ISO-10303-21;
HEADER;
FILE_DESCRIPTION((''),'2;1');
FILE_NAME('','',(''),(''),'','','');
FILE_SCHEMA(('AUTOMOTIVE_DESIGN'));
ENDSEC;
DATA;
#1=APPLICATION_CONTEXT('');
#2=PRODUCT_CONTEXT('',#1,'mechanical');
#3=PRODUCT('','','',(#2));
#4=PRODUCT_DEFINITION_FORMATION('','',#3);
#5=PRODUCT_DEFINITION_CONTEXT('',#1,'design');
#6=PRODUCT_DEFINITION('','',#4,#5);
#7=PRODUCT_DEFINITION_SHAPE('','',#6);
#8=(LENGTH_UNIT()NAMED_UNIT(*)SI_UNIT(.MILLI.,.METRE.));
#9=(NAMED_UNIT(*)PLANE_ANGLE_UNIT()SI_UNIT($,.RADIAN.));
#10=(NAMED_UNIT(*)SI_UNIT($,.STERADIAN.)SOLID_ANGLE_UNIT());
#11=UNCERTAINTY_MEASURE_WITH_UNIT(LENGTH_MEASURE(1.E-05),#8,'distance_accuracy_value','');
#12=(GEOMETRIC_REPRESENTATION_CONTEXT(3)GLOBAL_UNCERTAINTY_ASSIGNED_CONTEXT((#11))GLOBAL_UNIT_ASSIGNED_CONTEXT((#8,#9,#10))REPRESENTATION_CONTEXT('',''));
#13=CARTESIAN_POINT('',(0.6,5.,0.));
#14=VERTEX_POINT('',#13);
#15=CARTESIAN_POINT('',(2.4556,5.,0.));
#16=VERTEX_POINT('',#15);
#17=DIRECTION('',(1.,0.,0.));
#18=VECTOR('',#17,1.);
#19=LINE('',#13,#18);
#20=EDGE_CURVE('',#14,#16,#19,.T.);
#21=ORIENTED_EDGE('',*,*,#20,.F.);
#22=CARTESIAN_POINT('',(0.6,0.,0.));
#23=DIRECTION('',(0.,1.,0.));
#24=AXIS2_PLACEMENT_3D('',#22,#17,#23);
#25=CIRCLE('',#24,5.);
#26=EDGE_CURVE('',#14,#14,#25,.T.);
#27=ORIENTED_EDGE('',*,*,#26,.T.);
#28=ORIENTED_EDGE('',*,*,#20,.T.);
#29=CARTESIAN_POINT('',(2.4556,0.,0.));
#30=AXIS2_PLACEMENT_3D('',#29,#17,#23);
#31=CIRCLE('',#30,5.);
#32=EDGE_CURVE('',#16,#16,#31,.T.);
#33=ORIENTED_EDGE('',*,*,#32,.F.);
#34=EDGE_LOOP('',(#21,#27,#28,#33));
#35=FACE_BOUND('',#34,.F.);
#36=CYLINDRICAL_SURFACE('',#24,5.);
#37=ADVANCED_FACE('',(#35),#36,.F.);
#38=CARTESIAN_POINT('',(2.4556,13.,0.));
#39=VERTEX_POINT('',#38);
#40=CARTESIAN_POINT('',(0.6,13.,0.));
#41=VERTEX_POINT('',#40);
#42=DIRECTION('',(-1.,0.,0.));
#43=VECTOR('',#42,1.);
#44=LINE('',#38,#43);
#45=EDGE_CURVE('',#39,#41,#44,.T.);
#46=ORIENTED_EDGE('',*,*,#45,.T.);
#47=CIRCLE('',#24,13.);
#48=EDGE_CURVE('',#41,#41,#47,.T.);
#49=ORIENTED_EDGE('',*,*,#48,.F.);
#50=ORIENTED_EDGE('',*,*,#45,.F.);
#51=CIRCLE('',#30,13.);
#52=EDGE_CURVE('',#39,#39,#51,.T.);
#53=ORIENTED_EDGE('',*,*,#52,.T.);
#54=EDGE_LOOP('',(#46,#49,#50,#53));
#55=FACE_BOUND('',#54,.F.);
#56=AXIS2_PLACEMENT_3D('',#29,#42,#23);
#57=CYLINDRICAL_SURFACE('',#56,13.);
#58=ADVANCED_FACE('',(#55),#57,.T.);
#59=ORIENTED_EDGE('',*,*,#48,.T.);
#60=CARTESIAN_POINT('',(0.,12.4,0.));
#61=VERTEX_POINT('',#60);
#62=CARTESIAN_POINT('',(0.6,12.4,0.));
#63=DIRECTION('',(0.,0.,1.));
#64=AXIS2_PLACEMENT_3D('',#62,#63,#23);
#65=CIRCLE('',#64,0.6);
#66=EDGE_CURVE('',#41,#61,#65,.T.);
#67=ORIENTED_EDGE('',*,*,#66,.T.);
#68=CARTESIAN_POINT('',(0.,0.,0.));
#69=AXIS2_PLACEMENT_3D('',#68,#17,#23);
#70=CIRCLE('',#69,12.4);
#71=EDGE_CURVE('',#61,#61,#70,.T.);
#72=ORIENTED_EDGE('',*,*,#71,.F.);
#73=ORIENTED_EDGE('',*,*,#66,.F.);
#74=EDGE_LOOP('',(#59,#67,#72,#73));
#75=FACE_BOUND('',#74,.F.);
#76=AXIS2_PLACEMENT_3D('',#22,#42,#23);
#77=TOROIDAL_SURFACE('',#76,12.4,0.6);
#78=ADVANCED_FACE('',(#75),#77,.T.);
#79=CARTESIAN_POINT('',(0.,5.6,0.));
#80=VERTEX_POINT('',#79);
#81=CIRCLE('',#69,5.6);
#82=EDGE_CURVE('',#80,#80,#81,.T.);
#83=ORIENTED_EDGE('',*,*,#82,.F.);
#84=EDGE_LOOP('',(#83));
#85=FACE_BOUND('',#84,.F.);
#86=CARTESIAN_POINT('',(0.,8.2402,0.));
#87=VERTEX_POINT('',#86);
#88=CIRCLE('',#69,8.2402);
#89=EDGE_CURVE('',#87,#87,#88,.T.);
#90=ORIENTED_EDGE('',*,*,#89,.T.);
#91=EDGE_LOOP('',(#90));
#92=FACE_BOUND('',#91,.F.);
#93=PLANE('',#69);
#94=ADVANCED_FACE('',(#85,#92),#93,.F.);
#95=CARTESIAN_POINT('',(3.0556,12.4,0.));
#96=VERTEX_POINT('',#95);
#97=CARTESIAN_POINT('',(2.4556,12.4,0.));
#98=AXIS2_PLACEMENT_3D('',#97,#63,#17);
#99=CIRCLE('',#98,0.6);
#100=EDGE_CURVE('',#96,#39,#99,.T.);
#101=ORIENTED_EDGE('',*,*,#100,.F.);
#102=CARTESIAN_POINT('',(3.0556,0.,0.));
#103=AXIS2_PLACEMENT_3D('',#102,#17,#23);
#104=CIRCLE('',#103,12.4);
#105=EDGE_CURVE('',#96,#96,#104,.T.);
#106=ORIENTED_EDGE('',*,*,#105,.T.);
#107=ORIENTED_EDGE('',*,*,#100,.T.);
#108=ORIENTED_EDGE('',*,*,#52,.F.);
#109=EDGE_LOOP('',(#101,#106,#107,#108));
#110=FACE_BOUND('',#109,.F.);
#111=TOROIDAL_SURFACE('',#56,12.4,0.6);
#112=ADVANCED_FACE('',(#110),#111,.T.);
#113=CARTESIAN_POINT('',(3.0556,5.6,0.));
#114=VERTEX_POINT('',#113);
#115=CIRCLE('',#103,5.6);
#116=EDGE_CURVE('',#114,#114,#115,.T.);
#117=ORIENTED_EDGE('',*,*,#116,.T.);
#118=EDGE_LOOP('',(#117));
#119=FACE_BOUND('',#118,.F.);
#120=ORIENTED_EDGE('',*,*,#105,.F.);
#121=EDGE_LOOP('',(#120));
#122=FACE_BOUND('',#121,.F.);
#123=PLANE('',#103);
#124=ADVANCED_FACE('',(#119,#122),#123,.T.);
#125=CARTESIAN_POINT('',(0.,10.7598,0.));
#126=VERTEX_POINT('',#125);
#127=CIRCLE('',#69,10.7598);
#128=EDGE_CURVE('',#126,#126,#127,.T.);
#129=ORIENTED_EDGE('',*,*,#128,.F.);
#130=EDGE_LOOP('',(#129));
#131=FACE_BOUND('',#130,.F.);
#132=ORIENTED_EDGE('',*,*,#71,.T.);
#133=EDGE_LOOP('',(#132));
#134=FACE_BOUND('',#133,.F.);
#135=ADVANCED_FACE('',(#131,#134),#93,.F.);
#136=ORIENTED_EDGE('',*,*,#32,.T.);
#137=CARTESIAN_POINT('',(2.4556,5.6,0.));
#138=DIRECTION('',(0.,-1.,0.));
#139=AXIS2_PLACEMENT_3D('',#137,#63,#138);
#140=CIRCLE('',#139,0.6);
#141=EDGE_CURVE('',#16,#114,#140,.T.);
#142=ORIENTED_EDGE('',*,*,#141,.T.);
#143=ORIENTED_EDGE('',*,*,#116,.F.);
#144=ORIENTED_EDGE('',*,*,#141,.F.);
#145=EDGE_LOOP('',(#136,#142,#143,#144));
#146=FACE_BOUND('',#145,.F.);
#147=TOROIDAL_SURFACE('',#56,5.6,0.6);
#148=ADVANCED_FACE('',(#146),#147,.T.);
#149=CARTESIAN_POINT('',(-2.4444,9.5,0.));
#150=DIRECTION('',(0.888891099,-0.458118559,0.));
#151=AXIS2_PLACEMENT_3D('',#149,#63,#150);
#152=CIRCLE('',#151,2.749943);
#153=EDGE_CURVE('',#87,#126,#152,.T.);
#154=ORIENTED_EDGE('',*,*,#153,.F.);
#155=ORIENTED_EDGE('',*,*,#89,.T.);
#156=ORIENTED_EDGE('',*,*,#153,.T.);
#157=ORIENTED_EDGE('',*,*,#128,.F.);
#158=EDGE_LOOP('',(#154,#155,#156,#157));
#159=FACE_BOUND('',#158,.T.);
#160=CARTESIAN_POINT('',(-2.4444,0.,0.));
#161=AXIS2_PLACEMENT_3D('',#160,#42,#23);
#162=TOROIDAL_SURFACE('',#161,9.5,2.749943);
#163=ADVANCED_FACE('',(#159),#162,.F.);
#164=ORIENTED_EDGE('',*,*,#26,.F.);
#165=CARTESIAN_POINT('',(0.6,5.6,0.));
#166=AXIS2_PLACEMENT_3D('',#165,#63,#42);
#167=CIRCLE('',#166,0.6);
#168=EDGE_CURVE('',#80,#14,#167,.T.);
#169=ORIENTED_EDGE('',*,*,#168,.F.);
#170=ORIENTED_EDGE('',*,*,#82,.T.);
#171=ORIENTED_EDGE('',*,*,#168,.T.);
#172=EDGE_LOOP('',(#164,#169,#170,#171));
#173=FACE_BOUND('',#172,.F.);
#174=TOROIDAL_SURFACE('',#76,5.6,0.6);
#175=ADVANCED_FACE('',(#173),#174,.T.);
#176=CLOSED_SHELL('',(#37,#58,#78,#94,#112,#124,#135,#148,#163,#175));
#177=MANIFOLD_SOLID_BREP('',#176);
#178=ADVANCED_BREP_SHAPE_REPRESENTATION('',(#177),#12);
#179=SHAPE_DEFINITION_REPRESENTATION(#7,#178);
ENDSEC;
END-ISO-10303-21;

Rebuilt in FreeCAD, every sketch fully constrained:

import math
import FreeCAD as App
import Part
import Sketcher

V = App.Vector
Q = App.Units.Quantity

doc = App.newDocument("Part")
params = doc.addObject("Spreadsheet::Sheet", "Params")
for row, (alias, value) in enumerate([
    ("sketch1_radius", "0.6 mm"),
    ("sketch1_radius2", "2.75 mm"),
    ("sketch1_height", "6.8 mm"),
    ("revolution_angle", "360 deg"),
], start=1):
    params.set(f"A{row}", alias)
    params.set(f"B{row}", "=" + value)
    params.setAlias(f"B{row}", alias)

body = doc.addObject("PartDesign::Body", "Body")

sketch1 = body.newObject("Sketcher::SketchObject", "Sketch")
sketch1.AttachmentSupport = (doc.getObject("XY_Plane"), [""])
sketch1.MapMode = "FlatFace"
sketch1.addGeometry([
    Part.ArcOfCircle(Part.Circle(V(-2.4, 9.5, 0), V(0, 0, 1), 2.7), math.radians(-27), math.radians(27)),
    Part.LineSegment(V(0, 8.2, 0), V(0, 5.6, 0)),
    Part.ArcOfCircle(Part.Circle(V(0.6, 5.6, 0), V(0, 0, 1), 0.6), math.radians(180), math.radians(270)),
    Part.LineSegment(V(0.6, 5, 0), V(2.5, 5, 0)),
    Part.ArcOfCircle(Part.Circle(V(2.5, 5.6, 0), V(0, 0, 1), 0.6), math.radians(-90), math.radians(0)),
    Part.LineSegment(V(3.1, 5.6, 0), V(3.1, 12.4, 0)),
    Part.ArcOfCircle(Part.Circle(V(2.5, 12.4, 0), V(0, 0, 1), 0.6), math.radians(0), math.radians(90)),
    Part.LineSegment(V(2.5, 13, 0), V(0.6, 13, 0)),
    Part.ArcOfCircle(Part.Circle(V(0.6, 12.4, 0), V(0, 0, 1), 0.6), math.radians(90), math.radians(180)),
    Part.LineSegment(V(0, 12.4, 0), V(0, 10.8, 0)),
], False)
sketch1.addConstraint([
    Sketcher.Constraint("Coincident", 0, 1, 1, 1),
    Sketcher.Constraint("Tangent", 1, 2, 2, 1),
    Sketcher.Constraint("Tangent", 2, 2, 3, 1),
    Sketcher.Constraint("Tangent", 3, 2, 4, 1),
    Sketcher.Constraint("Tangent", 4, 2, 5, 1),
    Sketcher.Constraint("Tangent", 5, 2, 6, 1),
    Sketcher.Constraint("Tangent", 6, 2, 7, 1),
    Sketcher.Constraint("Tangent", 7, 2, 8, 1),
    Sketcher.Constraint("Tangent", 8, 2, 9, 1),
    Sketcher.Constraint("Coincident", 9, 2, 0, 2),
    Sketcher.Constraint("Vertical", 1),
    Sketcher.Constraint("Horizontal", 3),
    Sketcher.Constraint("Vertical", 5),
    Sketcher.Constraint("Horizontal", 7),
    Sketcher.Constraint("Vertical", 9),
    Sketcher.Constraint("Equal", 2, 4),
    Sketcher.Constraint("Equal", 4, 6),
    Sketcher.Constraint("Equal", 6, 8),
    Sketcher.Constraint("PointOnObject", 0, 1, -2),
    Sketcher.Constraint("PointOnObject", 8, 2, -2),
    Sketcher.Constraint("Radius", 2, Q("0.6 mm")),
    Sketcher.Constraint("Radius", 0, Q("2.75 mm")),
    Sketcher.Constraint("DistanceY", 5, 1, 5, 2, Q("6.8 mm")),
    Sketcher.Constraint("DistanceY", -1, 1, 2, 2, Q("5 mm")),
    Sketcher.Constraint("DistanceY", -1, 1, 0, 3, Q("9.5 mm")),
    Sketcher.Constraint("DistanceX", 0, 3, 4, 3, Q("4.9 mm")),
    Sketcher.Constraint("DistanceX", 3, 1, 3, 2, Q("1.8556 mm")),
])
sketch1.setExpression("Constraints[20]", "Params.sketch1_radius")
sketch1.setExpression("Constraints[21]", "Params.sketch1_radius2")
sketch1.setExpression("Constraints[22]", "Params.sketch1_height")
revolution = body.newObject("PartDesign::Revolution", "Revolution")
revolution.Profile = sketch1
revolution.ReferenceAxis = (sketch1, ["H_Axis"])
revolution.setExpression("Angle", "Params.revolution_angle")

doc.recompute()
